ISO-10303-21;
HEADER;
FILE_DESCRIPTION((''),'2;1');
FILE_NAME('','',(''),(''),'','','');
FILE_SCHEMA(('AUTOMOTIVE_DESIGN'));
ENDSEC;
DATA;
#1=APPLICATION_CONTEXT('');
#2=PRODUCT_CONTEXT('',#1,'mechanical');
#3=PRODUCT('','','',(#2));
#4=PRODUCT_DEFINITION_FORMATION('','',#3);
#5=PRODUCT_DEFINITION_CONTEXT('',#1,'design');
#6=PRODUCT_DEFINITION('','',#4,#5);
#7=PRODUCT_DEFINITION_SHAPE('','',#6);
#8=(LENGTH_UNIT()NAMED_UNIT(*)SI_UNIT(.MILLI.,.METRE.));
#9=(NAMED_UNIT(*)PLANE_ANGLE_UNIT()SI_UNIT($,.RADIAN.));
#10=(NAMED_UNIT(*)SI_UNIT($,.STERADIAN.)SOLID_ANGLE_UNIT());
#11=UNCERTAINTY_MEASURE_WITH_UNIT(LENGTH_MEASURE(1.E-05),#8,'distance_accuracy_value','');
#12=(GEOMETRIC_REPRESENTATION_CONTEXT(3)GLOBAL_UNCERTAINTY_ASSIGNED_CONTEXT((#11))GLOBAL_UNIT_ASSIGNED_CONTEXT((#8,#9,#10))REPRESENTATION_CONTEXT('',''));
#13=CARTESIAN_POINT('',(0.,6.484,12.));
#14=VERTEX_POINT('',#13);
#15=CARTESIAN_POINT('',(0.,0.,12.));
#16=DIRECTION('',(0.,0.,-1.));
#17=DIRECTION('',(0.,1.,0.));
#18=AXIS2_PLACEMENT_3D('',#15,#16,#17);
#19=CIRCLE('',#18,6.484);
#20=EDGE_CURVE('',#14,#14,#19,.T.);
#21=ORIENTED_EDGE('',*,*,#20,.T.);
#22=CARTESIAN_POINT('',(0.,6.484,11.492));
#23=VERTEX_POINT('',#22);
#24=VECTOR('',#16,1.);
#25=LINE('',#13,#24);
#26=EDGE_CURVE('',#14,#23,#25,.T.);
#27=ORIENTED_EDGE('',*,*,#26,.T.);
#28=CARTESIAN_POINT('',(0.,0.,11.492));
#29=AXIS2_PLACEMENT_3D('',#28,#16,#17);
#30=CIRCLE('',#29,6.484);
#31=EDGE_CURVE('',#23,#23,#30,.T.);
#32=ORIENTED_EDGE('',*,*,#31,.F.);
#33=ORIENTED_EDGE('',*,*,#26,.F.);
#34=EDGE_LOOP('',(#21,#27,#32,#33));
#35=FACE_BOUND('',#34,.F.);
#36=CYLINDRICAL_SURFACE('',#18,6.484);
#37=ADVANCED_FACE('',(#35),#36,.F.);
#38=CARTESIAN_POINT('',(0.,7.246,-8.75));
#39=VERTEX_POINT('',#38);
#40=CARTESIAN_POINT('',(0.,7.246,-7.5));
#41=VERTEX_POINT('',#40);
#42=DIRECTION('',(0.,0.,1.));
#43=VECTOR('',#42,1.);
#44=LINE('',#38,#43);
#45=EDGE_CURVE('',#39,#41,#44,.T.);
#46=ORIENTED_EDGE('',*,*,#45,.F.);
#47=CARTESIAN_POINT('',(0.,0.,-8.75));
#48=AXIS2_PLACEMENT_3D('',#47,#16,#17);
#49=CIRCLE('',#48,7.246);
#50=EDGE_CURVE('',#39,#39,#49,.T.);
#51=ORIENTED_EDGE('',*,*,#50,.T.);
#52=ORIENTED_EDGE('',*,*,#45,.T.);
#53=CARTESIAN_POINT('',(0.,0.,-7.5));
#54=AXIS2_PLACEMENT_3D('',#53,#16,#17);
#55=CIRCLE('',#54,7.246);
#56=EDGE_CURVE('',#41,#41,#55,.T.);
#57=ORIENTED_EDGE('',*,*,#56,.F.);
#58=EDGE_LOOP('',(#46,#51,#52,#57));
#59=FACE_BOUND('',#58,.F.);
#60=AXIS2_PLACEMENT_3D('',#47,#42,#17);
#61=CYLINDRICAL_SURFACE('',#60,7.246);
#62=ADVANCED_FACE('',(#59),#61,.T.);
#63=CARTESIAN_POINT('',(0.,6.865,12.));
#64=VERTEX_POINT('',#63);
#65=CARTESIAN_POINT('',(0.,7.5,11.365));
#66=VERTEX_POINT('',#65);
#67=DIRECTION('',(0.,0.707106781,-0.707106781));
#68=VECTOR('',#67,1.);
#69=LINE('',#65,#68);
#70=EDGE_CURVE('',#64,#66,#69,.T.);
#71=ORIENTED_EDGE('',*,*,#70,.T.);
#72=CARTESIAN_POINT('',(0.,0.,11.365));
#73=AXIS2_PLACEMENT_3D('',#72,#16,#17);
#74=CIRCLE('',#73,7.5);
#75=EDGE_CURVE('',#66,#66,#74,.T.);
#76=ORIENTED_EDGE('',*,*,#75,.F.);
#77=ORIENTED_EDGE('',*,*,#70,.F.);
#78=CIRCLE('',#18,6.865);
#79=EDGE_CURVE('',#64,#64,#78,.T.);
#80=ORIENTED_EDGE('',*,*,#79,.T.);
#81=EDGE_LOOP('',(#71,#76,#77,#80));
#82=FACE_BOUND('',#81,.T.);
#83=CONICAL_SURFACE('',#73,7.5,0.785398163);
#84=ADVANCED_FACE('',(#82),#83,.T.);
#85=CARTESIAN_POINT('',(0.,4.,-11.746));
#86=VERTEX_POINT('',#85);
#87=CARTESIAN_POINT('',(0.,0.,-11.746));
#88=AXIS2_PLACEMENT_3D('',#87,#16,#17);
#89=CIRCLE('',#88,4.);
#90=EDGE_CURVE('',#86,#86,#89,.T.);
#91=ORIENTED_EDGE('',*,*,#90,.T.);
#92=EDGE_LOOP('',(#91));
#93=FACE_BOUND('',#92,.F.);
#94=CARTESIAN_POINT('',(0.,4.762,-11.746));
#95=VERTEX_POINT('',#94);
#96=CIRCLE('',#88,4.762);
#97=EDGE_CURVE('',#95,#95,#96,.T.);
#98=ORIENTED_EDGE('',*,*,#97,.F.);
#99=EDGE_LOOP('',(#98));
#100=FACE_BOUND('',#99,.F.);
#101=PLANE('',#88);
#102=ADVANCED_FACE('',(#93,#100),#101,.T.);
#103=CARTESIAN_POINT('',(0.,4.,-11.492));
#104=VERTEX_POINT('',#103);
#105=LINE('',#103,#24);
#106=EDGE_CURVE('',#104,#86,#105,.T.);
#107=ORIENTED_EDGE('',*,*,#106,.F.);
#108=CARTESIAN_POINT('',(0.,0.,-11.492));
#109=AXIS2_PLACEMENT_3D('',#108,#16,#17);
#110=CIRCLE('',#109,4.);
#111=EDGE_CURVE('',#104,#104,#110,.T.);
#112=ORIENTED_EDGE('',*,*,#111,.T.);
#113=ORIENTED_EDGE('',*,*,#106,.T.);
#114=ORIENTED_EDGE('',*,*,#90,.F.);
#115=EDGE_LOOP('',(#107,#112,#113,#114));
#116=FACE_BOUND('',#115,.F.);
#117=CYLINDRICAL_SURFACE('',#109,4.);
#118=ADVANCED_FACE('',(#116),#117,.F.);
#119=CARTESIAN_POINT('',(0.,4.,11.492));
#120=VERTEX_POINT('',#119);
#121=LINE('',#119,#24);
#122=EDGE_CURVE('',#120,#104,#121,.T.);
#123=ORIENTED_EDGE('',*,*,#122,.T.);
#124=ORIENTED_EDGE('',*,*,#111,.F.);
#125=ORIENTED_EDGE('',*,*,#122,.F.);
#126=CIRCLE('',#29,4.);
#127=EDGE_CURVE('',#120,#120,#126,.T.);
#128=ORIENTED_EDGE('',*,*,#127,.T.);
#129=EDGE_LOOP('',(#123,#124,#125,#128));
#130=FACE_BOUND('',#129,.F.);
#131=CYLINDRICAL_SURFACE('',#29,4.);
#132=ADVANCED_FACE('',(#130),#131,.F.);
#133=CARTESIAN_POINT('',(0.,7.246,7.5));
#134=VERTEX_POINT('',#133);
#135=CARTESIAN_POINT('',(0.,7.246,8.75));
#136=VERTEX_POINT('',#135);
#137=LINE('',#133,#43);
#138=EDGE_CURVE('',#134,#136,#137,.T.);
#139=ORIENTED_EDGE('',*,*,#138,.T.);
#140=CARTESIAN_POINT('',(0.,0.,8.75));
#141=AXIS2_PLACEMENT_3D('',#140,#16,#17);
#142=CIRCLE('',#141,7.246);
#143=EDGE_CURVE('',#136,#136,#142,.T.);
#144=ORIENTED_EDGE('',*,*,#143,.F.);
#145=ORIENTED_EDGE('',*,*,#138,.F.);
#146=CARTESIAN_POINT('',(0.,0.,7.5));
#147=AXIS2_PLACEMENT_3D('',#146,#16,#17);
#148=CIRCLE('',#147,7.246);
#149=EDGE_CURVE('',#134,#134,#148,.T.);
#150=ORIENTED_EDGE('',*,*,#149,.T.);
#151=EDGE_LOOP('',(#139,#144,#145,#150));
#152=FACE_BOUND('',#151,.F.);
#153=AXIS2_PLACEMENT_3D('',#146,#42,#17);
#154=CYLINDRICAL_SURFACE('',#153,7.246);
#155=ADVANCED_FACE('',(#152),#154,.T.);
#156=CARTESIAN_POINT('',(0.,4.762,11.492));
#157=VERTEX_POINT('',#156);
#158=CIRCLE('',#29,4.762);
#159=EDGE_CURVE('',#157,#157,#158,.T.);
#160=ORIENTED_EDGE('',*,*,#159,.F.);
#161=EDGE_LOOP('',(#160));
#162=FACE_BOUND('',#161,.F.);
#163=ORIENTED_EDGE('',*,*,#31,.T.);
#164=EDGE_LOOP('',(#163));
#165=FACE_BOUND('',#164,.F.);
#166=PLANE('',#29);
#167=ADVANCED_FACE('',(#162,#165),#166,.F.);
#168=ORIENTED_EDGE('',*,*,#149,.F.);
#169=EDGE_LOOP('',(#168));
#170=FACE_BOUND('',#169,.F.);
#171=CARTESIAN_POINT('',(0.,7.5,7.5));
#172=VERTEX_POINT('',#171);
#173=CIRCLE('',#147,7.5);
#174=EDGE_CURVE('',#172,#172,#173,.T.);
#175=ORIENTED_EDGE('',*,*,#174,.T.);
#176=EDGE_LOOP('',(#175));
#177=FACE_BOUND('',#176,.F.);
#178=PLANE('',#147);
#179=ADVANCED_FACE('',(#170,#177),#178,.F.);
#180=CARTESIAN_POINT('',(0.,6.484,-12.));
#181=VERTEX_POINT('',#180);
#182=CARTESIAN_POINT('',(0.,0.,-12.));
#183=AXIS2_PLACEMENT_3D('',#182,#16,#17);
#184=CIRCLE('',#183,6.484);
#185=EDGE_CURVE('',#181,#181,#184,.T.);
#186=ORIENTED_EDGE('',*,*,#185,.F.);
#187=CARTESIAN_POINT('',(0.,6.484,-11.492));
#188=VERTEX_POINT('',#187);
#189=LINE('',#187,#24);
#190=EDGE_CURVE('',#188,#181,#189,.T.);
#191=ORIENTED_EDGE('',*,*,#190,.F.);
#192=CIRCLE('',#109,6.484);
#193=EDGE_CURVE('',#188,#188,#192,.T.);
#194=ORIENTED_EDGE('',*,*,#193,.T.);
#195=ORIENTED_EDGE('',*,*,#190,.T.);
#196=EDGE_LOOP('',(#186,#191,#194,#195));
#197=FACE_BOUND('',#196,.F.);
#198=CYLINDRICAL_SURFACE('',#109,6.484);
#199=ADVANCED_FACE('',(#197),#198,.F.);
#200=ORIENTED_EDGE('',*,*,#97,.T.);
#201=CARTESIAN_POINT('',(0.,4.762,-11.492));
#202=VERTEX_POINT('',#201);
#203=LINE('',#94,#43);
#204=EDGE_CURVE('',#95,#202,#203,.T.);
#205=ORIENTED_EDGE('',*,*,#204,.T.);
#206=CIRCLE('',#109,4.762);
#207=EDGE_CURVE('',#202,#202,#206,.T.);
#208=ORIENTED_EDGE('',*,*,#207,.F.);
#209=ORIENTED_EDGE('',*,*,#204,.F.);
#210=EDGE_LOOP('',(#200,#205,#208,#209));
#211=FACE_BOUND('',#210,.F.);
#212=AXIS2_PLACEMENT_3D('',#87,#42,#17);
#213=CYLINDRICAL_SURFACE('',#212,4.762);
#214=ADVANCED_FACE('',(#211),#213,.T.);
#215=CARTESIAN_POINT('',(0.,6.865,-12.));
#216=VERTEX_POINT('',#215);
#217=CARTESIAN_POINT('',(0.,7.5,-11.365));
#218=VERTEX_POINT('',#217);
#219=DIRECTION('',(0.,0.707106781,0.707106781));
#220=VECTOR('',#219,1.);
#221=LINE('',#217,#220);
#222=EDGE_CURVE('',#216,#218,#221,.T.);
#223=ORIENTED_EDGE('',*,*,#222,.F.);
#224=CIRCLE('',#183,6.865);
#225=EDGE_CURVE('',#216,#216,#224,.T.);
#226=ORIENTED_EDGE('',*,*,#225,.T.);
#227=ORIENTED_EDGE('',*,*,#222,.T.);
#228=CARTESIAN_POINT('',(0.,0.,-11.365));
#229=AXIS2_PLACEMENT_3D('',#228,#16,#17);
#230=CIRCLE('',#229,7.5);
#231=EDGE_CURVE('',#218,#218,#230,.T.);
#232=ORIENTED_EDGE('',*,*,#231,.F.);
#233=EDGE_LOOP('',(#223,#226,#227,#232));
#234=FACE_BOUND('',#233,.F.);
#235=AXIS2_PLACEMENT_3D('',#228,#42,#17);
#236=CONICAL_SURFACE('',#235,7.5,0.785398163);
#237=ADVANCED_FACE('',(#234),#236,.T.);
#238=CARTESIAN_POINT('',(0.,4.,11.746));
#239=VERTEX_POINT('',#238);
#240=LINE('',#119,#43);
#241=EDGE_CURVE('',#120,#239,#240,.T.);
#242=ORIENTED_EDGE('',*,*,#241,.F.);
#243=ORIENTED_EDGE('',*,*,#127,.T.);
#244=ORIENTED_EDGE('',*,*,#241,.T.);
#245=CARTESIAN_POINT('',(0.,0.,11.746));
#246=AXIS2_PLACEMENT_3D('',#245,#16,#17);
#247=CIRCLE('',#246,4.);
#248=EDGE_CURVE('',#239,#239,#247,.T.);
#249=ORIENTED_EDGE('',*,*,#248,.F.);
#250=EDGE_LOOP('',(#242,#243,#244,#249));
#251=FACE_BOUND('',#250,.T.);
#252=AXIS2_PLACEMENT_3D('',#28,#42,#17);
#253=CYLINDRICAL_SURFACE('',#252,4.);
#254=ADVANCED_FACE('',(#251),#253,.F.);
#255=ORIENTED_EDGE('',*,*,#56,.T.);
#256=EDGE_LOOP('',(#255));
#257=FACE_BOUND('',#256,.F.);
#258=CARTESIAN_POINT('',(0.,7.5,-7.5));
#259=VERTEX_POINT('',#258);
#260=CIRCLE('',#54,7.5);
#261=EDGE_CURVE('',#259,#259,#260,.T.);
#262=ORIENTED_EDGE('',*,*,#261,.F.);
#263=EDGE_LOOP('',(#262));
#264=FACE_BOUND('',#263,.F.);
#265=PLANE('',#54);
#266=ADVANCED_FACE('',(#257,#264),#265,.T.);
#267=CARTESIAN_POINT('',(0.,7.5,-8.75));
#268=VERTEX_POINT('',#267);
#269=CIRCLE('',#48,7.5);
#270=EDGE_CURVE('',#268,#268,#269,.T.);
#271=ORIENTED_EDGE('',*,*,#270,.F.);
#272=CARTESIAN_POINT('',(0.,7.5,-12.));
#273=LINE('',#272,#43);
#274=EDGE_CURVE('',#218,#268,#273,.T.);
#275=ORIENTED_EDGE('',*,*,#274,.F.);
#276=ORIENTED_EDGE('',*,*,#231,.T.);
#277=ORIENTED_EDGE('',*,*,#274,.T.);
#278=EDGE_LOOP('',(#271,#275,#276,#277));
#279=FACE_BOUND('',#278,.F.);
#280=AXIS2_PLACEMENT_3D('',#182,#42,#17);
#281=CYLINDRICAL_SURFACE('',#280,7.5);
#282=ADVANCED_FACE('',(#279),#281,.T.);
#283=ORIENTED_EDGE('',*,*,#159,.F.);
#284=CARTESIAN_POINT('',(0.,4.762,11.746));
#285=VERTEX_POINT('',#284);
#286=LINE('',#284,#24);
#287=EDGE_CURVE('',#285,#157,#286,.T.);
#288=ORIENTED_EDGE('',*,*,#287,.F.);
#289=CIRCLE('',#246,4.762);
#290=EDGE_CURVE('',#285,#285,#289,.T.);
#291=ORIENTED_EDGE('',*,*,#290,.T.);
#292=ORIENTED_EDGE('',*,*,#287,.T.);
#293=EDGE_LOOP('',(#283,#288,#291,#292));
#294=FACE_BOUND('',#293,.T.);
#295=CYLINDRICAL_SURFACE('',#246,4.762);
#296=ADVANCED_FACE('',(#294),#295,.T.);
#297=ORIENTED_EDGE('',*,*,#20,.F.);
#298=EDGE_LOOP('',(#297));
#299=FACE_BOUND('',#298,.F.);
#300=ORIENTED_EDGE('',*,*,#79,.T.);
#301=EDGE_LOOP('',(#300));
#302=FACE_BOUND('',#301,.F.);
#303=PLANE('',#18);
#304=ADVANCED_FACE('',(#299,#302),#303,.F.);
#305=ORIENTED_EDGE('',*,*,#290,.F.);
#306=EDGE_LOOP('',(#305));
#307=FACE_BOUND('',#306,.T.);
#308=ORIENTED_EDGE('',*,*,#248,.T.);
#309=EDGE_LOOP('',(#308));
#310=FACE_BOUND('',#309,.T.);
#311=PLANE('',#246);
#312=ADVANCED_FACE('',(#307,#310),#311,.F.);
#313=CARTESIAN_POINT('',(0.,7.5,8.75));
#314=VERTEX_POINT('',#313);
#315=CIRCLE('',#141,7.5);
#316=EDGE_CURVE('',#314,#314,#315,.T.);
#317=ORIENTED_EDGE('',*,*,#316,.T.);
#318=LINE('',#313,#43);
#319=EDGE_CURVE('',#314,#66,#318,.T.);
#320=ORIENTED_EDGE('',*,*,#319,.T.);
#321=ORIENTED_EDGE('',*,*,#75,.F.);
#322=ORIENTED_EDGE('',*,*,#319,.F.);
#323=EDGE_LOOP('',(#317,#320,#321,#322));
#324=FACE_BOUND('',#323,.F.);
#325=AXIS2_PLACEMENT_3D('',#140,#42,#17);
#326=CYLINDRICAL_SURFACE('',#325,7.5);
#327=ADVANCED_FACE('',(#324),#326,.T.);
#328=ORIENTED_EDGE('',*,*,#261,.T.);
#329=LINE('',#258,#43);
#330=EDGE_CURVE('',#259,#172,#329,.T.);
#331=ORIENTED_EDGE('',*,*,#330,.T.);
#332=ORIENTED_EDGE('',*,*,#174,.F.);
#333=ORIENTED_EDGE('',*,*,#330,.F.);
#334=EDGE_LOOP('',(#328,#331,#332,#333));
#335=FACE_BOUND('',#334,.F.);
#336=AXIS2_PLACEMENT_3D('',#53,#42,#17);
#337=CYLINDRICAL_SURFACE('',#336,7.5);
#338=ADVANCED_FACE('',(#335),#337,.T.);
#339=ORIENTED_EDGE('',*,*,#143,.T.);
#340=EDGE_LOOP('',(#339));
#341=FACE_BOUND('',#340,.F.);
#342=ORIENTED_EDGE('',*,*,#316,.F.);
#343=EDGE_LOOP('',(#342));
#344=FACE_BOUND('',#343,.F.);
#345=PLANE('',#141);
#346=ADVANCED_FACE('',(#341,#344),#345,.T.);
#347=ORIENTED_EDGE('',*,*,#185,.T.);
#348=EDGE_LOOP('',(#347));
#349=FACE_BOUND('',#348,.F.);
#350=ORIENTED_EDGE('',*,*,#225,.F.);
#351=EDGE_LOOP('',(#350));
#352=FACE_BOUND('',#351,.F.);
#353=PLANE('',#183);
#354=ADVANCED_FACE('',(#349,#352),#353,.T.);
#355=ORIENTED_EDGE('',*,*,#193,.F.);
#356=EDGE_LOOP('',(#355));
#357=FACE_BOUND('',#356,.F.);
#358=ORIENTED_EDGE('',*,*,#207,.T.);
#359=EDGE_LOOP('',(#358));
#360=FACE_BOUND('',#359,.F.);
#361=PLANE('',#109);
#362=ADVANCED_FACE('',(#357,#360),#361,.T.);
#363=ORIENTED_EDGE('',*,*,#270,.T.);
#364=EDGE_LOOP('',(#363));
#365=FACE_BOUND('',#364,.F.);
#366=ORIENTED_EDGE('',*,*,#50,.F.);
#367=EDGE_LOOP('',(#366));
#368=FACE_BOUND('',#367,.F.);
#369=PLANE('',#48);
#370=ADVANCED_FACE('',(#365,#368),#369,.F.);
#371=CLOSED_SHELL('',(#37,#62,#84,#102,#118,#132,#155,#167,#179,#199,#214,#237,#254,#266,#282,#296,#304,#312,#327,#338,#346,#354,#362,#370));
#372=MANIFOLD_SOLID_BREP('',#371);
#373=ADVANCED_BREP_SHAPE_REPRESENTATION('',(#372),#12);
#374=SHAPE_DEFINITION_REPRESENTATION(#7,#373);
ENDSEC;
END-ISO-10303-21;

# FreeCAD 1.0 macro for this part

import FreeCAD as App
import Part
import Sketcher
Q = App.Units.Quantity


def edges_at(feature, points):
    """Names of the edges that pass closest to the given points."""
    edges = feature.Shape.Edges
    near = lambda p: min(range(len(edges)), key=lambda i: edges[i].distToShape(Part.Vertex(*p))[0])
    return sorted({f"Edge{near(p) + 1}" for p in points})

doc = App.newDocument("Part")
body = doc.addObject("PartDesign::Body", "Body")

# Sketch on YZ plane
sketch1 = body.newObject("Sketcher::SketchObject", "Sketch")
sketch1.AttachmentSupport = (doc.getObject("YZ_Plane"), [""])
sketch1.MapMode = "FlatFace"
sketch1.addGeometry([
    Part.LineSegment(App.Vector(6.48, 11.49, 0), App.Vector(4.76, 11.49, 0)),  # 0
    Part.LineSegment(App.Vector(4.76, 11.49, 0), App.Vector(4.76, 11.75, 0)),  # 1
    Part.LineSegment(App.Vector(4.76, 11.75, 0), App.Vector(4, 11.75, 0)),  # 2
    Part.LineSegment(App.Vector(4, 11.75, 0), App.Vector(4, -11.75, 0)),  # 3
    Part.LineSegment(App.Vector(4, -11.75, 0), App.Vector(4.76, -11.75, 0)),  # 4
    Part.LineSegment(App.Vector(4.76, -11.75, 0), App.Vector(4.76, -11.49, 0)),  # 5
    Part.LineSegment(App.Vector(4.76, -11.49, 0), App.Vector(6.48, -11.49, 0)),  # 6
    Part.LineSegment(App.Vector(6.48, -11.49, 0), App.Vector(6.48, -12, 0)),  # 7
    Part.LineSegment(App.Vector(6.48, -12, 0), App.Vector(7.5, -12, 0)),  # 8
    Part.LineSegment(App.Vector(7.5, -12, 0), App.Vector(7.5, -8.75, 0)),  # 9
    Part.LineSegment(App.Vector(7.5, -8.75, 0), App.Vector(7.25, -8.75, 0)),  # 10
    Part.LineSegment(App.Vector(7.25, -8.75, 0), App.Vector(7.25, -7.5, 0)),  # 11
    Part.LineSegment(App.Vector(7.25, -7.5, 0), App.Vector(7.5, -7.5, 0)),  # 12
    Part.LineSegment(App.Vector(7.5, -7.5, 0), App.Vector(7.5, 7.5, 0)),  # 13
    Part.LineSegment(App.Vector(7.5, 7.5, 0), App.Vector(7.25, 7.5, 0)),  # 14
    Part.LineSegment(App.Vector(7.25, 7.5, 0), App.Vector(7.25, 8.75, 0)),  # 15
    Part.LineSegment(App.Vector(7.25, 8.75, 0), App.Vector(7.5, 8.75, 0)),  # 16
    Part.LineSegment(App.Vector(7.5, 8.75, 0), App.Vector(7.5, 12, 0)),  # 17
    Part.LineSegment(App.Vector(7.5, 12, 0), App.Vector(6.48, 12, 0)),  # 18
    Part.LineSegment(App.Vector(6.48, 12, 0), App.Vector(6.48, 11.49, 0)),  # 19
], False)
sketch1.addConstraint([
    Sketcher.Constraint("Coincident", 0, 2, 1, 1),
    Sketcher.Constraint("Coincident", 1, 2, 2, 1),
    Sketcher.Constraint("Coincident", 2, 2, 3, 1),
    Sketcher.Constraint("Coincident", 3, 2, 4, 1),
    Sketcher.Constraint("Coincident", 4, 2, 5, 1),
    Sketcher.Constraint("Coincident", 5, 2, 6, 1),
    Sketcher.Constraint("Coincident", 6, 2, 7, 1),
    Sketcher.Constraint("Coincident", 7, 2, 8, 1),
    Sketcher.Constraint("Coincident", 8, 2, 9, 1),
    Sketcher.Constraint("Coincident", 9, 2, 10, 1),
    Sketcher.Constraint("Coincident", 10, 2, 11, 1),
    Sketcher.Constraint("Coincident", 11, 2, 12, 1),
    Sketcher.Constraint("Coincident", 12, 2, 13, 1),
    Sketcher.Constraint("Coincident", 13, 2, 14, 1),
    Sketcher.Constraint("Coincident", 14, 2, 15, 1),
    Sketcher.Constraint("Coincident", 15, 2, 16, 1),
    Sketcher.Constraint("Coincident", 16, 2, 17, 1),
    Sketcher.Constraint("Coincident", 17, 2, 18, 1),
    Sketcher.Constraint("Coincident", 18, 2, 19, 1),
    Sketcher.Constraint("Coincident", 19, 2, 0, 1),
    Sketcher.Constraint("Horizontal", 0),
    Sketcher.Constraint("Vertical", 1),
    Sketcher.Constraint("Horizontal", 2),
    Sketcher.Constraint("Vertical", 3),
    Sketcher.Constraint("Horizontal", 4),
    Sketcher.Constraint("Vertical", 5),
    Sketcher.Constraint("Horizontal", 6),
    Sketcher.Constraint("Vertical", 7),
    Sketcher.Constraint("Horizontal", 8),
    Sketcher.Constraint("Vertical", 9),
    Sketcher.Constraint("Horizontal", 10),
    Sketcher.Constraint("Vertical", 11),
    Sketcher.Constraint("Horizontal", 12),
    Sketcher.Constraint("Vertical", 13),
    Sketcher.Constraint("Horizontal", 14),
    Sketcher.Constraint("Vertical", 15),
    Sketcher.Constraint("Horizontal", 16),
    Sketcher.Constraint("Vertical", 17),
    Sketcher.Constraint("Horizontal", 18),
    Sketcher.Constraint("Vertical", 19),
    Sketcher.Constraint("Symmetric", 1, 2, 4, 2, -1),
    Sketcher.Constraint("Symmetric", 11, 2, 14, 2, -1),
    Sketcher.Constraint("Symmetric", 9, 2, 16, 2, -1),
    Sketcher.Constraint("Symmetric", 7, 2, 18, 2, -1),
    Sketcher.Constraint("Vertical", 9, 2, 12, 2),
    Sketcher.Constraint("Equal", 16, 1),
    Sketcher.Constraint("Equal", 1, 5),
    Sketcher.Constraint("DistanceX", 2, 2, 2, 1, Q("0.03 in")),
    Sketcher.Constraint("DistanceX", 8, 1, 8, 2, Q("0.04 in")),
    Sketcher.Constraint("DistanceX", 10, 2, 10, 1, Q("0.01 in")),
    Sketcher.Constraint("DistanceY", 7, 2, 7, 1, Q("0.02 in")),
    Sketcher.Constraint("DistanceY", 11, 1, 11, 2, 1.25),
    Sketcher.Constraint("DistanceY", 13, 1, 13, 2, 15.0),
    Sketcher.Constraint("DistanceX", 0, 2, 0, 1, Q("0.0678 in")),
    Sketcher.Constraint("DistanceY", 3, 2, 3, 1, 23.492),
    Sketcher.Constraint("DistanceX", -1, 1, 0, 2, 4.762),
])
revolution = body.newObject("PartDesign::Revolution", "Revolution")
revolution.Profile = sketch1
revolution.ReferenceAxis = (sketch1, ["V_Axis"])
revolution.Angle = 360
doc.recompute()

chamfer = body.newObject("PartDesign::Chamfer", "Chamfer")
chamfer.Base = (revolution, edges_at(revolution, [(0, -7.5, 12), (0, -7.5, -12)]))
chamfer.Size = Q("0.025 in")

doc.recompute()
